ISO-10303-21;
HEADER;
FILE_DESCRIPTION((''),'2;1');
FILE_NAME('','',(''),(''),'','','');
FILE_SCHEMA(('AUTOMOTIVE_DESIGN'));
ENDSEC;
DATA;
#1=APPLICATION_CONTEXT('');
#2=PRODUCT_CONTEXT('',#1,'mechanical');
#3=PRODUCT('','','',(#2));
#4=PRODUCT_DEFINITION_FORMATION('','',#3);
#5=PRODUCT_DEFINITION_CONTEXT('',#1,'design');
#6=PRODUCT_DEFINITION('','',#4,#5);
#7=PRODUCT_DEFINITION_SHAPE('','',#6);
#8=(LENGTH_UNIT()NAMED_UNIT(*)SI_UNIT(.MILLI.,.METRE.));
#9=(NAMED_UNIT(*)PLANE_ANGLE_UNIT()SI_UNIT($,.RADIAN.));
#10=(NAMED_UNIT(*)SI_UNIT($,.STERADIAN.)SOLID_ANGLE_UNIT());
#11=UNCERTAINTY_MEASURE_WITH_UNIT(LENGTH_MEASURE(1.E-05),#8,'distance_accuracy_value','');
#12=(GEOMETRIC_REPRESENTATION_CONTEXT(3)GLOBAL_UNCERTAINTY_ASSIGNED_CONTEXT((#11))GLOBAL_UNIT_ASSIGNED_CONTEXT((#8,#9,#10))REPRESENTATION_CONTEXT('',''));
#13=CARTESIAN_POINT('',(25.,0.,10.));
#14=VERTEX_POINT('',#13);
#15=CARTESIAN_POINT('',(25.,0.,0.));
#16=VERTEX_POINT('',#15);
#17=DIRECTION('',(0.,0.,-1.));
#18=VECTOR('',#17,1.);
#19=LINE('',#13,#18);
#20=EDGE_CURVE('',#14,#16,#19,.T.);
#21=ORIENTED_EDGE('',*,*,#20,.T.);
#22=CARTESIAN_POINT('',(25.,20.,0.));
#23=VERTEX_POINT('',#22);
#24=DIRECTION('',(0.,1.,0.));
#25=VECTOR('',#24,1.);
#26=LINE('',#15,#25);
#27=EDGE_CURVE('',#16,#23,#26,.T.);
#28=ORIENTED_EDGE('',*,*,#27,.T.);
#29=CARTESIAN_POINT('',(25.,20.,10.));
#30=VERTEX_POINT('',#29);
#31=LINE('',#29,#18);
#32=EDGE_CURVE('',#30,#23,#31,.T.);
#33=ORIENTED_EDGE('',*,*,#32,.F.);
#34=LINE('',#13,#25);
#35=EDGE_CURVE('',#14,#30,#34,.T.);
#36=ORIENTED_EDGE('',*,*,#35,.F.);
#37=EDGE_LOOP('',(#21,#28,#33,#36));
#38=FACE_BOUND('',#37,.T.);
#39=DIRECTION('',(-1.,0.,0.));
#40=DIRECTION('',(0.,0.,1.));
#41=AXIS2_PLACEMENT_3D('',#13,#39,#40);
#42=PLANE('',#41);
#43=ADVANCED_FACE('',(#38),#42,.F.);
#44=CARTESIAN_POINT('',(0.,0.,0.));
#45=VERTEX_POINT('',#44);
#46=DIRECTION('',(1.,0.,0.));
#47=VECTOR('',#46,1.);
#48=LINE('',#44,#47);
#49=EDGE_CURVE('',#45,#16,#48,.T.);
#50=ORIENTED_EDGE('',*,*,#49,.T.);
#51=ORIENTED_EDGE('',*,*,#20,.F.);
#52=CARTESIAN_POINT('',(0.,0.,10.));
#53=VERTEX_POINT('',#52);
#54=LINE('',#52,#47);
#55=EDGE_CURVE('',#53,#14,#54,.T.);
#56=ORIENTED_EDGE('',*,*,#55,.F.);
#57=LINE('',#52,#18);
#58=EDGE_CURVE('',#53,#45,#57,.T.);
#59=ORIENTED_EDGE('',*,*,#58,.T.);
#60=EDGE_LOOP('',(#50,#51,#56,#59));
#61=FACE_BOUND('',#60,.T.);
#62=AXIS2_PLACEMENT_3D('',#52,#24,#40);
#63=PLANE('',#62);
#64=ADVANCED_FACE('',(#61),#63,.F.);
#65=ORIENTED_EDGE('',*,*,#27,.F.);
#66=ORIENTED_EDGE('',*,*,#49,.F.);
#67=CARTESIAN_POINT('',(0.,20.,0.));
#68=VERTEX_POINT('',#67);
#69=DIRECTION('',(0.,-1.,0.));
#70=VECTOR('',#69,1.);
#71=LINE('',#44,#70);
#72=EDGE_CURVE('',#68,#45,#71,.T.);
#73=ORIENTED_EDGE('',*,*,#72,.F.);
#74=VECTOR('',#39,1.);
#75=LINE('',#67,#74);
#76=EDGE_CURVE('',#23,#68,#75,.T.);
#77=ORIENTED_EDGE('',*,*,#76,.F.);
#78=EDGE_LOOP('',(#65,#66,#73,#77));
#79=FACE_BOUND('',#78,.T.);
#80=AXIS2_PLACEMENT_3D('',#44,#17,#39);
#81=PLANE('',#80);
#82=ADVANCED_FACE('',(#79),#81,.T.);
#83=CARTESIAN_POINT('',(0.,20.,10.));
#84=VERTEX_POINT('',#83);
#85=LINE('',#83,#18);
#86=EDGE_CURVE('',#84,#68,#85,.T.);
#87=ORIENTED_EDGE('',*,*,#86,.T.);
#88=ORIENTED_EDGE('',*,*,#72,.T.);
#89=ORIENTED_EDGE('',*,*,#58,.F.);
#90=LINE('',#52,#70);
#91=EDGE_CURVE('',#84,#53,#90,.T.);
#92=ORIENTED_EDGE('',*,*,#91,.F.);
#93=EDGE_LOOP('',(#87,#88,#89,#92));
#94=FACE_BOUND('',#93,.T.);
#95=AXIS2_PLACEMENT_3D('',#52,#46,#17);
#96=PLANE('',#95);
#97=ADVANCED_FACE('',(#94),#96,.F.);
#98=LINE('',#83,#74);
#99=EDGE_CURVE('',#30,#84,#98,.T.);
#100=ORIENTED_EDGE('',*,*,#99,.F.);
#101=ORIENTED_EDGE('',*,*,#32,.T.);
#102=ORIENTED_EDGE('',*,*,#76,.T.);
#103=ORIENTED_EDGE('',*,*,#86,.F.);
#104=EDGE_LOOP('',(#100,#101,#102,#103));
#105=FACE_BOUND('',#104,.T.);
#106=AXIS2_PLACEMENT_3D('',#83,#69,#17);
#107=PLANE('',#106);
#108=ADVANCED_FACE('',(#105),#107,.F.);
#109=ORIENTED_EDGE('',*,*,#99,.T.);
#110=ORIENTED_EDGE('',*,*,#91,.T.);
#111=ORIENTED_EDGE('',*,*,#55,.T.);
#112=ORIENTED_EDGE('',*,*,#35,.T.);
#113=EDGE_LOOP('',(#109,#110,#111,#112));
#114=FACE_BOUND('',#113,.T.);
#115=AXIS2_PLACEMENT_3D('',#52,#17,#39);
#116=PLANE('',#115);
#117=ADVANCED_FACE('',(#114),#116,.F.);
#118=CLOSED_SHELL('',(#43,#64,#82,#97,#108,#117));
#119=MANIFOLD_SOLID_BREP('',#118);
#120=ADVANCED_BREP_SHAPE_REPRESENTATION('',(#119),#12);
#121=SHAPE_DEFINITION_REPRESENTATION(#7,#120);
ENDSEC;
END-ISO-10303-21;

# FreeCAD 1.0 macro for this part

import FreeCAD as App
import Part
import Sketcher
from FreeCAD import Vector
Q = App.Units.Quantity


def add_polygon(sketch, points):
    """Adds a closed chain of lines whose ends are joined by coincident constraints."""
    first, n = sketch.GeometryCount, len(points)
    for a, b in zip(points, points[1:] + points[:1]):
        sketch.addGeometry(Part.LineSegment(App.Vector(*a, 0), App.Vector(*b, 0)), False)
    for i in range(n):
        sketch.addConstraint(Sketcher.Constraint("Coincident", first + i, 2, first + (i + 1) % n, 1))

doc = App.newDocument("Part")
body = doc.addObject("PartDesign::Body", "Body")

# Sketch on XY plane
sketch1 = body.newObject("Sketcher::SketchObject", "Sketch")
sketch1.AttachmentSupport = (doc.getObject("XY_Plane"), [""])
sketch1.MapMode = "FlatFace"
add_polygon(sketch1, [(0, 20), (0, 0), (25, 0), (25, 20)])  # lines 0-3
sketch1.addConstraint([
    Sketcher.Constraint("Vertical", 0),
    Sketcher.Constraint("Horizontal", 1),
    Sketcher.Constraint("Vertical", 2),
    Sketcher.Constraint("Horizontal", 3),
    Sketcher.Constraint("Coincident", 0, 2, -1, 1),
    Sketcher.Constraint("DistanceX", 1, 1, 1, 2, Q("25 mm")),
    Sketcher.Constraint("DistanceY", 0, 2, 0, 1, Q("20 mm")),
])
pad1 = body.newObject("PartDesign::Pad", "Pad")
pad1.Profile = sketch1
pad1.Length = 10

doc.recompute()
